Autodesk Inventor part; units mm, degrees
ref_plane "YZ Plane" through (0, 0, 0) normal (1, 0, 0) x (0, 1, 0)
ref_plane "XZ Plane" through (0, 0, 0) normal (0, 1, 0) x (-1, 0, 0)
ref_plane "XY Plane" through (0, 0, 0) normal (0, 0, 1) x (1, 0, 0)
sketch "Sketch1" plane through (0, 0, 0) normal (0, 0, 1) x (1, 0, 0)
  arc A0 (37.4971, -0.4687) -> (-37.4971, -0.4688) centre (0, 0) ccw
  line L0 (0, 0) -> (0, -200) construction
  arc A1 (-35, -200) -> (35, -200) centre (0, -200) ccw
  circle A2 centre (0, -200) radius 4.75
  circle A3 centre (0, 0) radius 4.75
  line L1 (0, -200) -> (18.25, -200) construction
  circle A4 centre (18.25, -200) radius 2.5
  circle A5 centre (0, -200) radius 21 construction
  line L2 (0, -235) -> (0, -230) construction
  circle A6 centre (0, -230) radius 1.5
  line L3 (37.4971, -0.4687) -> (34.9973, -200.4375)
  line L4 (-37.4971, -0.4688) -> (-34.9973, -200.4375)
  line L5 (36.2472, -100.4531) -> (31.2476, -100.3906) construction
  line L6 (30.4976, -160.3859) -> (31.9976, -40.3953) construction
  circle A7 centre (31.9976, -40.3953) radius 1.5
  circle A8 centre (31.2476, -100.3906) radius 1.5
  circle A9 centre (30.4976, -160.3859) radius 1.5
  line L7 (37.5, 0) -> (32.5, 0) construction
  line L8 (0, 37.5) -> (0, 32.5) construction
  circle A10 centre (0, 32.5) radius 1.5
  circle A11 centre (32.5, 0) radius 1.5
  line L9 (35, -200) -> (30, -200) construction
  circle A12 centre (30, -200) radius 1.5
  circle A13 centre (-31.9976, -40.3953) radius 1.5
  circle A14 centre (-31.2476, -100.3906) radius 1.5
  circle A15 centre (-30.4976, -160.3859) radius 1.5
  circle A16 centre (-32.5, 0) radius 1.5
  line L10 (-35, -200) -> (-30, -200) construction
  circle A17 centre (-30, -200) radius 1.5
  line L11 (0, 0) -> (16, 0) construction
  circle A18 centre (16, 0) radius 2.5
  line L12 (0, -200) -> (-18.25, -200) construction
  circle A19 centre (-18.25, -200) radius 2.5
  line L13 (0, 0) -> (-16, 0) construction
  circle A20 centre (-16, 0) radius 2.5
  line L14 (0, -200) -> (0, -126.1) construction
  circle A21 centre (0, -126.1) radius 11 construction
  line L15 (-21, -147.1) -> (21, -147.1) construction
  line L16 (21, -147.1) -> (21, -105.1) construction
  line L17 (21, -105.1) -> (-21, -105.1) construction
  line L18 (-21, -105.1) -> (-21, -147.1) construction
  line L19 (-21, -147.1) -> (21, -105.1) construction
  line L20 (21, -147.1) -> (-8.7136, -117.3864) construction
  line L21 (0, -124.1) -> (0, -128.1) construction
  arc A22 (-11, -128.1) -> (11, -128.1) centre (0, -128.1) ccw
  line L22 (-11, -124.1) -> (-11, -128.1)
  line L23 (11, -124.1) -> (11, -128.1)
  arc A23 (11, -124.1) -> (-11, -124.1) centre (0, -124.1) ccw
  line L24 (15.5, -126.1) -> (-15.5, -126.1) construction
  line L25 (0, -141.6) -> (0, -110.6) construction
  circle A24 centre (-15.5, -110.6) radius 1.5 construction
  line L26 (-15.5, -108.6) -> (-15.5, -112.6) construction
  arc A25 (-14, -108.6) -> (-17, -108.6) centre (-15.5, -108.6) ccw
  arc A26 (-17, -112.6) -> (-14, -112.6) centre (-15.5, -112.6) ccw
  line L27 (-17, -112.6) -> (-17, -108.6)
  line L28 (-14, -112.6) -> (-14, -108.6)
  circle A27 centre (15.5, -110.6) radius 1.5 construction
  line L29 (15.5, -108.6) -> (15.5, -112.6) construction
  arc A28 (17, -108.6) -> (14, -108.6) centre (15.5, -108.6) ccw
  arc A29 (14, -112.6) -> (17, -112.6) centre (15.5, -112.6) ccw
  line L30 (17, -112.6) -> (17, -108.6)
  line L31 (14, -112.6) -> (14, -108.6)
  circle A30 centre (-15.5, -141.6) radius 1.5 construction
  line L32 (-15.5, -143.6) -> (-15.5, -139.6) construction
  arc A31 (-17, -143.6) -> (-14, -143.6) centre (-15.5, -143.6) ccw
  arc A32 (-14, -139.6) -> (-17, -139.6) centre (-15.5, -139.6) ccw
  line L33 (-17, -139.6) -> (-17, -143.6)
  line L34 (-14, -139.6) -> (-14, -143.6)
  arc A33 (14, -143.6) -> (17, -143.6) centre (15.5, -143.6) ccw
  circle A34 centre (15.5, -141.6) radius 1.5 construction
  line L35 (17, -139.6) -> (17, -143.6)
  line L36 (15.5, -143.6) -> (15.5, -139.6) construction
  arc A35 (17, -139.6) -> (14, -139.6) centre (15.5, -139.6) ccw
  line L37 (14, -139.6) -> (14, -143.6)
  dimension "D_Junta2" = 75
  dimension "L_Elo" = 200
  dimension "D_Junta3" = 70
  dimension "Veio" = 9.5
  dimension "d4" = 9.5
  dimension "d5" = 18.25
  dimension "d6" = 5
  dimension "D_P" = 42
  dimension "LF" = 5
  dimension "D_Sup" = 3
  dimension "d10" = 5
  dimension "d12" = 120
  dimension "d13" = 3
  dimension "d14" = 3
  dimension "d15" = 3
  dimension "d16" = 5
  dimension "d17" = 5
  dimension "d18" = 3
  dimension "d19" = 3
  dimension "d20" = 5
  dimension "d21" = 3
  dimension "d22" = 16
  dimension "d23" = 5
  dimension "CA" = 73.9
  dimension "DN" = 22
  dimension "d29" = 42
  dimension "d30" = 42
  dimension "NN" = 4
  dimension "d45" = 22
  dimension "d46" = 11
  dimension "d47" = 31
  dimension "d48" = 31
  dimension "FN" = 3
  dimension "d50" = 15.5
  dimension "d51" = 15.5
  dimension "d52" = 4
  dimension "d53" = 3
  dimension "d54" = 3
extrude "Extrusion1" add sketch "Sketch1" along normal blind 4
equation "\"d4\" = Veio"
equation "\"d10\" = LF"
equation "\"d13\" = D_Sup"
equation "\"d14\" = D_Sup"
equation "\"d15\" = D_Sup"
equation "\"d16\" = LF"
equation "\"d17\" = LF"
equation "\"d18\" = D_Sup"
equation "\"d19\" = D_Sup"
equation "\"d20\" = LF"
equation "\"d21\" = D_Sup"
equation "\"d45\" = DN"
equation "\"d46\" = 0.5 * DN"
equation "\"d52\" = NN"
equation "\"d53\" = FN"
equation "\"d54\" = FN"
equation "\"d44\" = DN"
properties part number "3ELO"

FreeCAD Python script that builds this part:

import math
import FreeCAD as App
import Part
import Sketcher

V = App.Vector
Q = App.Units.Quantity

doc = App.newDocument("Part")
body = doc.addObject("PartDesign::Body", "Body")

# Sketch on XY plane
sketch1 = body.newObject("Sketcher::SketchObject", "Sketch")
sketch1.AttachmentSupport = (doc.getObject("XY_Plane"), [""])
sketch1.MapMode = "FlatFace"
sketch1.addGeometry(Part.LineSegment(V(35, -200.4, 0), V(37.5, -0.5, 0)), False)
sketch1.addGeometry(Part.ArcOfCircle(Part.Circle(V(0, 0, 0), V(0, 0, 1), 37.5), math.radians(-1), math.radians(181)), False)
sketch1.addGeometry(Part.LineSegment(V(-37.5, -0.5, 0), V(-35, -200.4, 0)), False)
sketch1.addGeometry(Part.ArcOfCircle(Part.Circle(V(0, -200, 0), V(0, 0, 1), 35), math.radians(-179), math.radians(-1)), False)
sketch1.addGeometry(Part.Circle(V(-30, -200, 0), V(0, 0, 1), 1.5), False)
sketch1.addGeometry(Part.Circle(V(-18.2, -200, 0), V(0, 0, 1), 2.5), False)
sketch1.addGeometry(Part.Circle(V(-30.5, -160.4, 0), V(0, 0, 1), 1.5), False)
sketch1.addGeometry(Part.Circle(V(-31.2, -100.4, 0), V(0, 0, 1), 1.5), False)
sketch1.addGeometry(Part.ArcOfCircle(Part.Circle(V(-15.5, -143.6, 0), V(0, 0, 1), 1.5), math.radians(180), math.radians(360)), False)
sketch1.addGeometry(Part.LineSegment(V(-17, -143.6, 0), V(-17, -139.6, 0)), False)
sketch1.addGeometry(Part.ArcOfCircle(Part.Circle(V(-15.5, -139.6, 0), V(0, 0, 1), 1.5), math.radians(0), math.radians(180)), False)
sketch1.addGeometry(Part.LineSegment(V(-14, -139.6, 0), V(-14, -143.6, 0)), False)
sketch1.addGeometry(Part.ArcOfCircle(Part.Circle(V(-15.5, -108.6, 0), V(0, 0, 1), 1.5), math.radians(0), math.radians(180)), False)
sketch1.addGeometry(Part.LineSegment(V(-14, -108.6, 0), V(-14, -112.6, 0)), False)
sketch1.addGeometry(Part.ArcOfCircle(Part.Circle(V(-15.5, -112.6, 0), V(0, 0, 1), 1.5), math.radians(180), math.radians(360)), False)
sketch1.addGeometry(Part.LineSegment(V(-17, -112.6, 0), V(-17, -108.6, 0)), False)
sketch1.addGeometry(Part.Circle(V(0, -230, 0), V(0, 0, 1), 1.5), False)
sketch1.addGeometry(Part.Circle(V(0, -200, 0), V(0, 0, 1), 4.8), False)
sketch1.addGeometry(Part.Circle(V(18.2, -200, 0), V(0, 0, 1), 2.5), False)
sketch1.addGeometry(Part.Circle(V(30, -200, 0), V(0, 0, 1), 1.5), False)
sketch1.addGeometry(Part.ArcOfCircle(Part.Circle(V(15.5, -143.6, 0), V(0, 0, 1), 1.5), math.radians(180), math.radians(360)), False)
sketch1.addGeometry(Part.LineSegment(V(14, -143.6, 0), V(14, -139.6, 0)), False)
sketch1.addGeometry(Part.ArcOfCircle(Part.Circle(V(15.5, -139.6, 0), V(0, 0, 1), 1.5), math.radians(0), math.radians(180)), False)
sketch1.addGeometry(Part.LineSegment(V(17, -139.6, 0), V(17, -143.6, 0)), False)
sketch1.addGeometry(Part.ArcOfCircle(Part.Circle(V(0, -128.1, 0), V(0, 0, 1), 11), math.radians(180), math.radians(360)), False)
sketch1.addGeometry(Part.LineSegment(V(-11, -128.1, 0), V(-11, -124.1, 0)), False)
sketch1.addGeometry(Part.ArcOfCircle(Part.Circle(V(0, -124.1, 0), V(0, 0, 1), 11), math.radians(0), math.radians(180)), False)
sketch1.addGeometry(Part.LineSegment(V(11, -124.1, 0), V(11, -128.1, 0)), False)
sketch1.addGeometry(Part.ArcOfCircle(Part.Circle(V(15.5, -108.6, 0), V(0, 0, 1), 1.5), math.radians(0), math.radians(180)), False)
sketch1.addGeometry(Part.LineSegment(V(17, -108.6, 0), V(17, -112.6, 0)), False)
sketch1.addGeometry(Part.ArcOfCircle(Part.Circle(V(15.5, -112.6, 0), V(0, 0, 1), 1.5), math.radians(180), math.radians(360)), False)
sketch1.addGeometry(Part.LineSegment(V(14, -112.6, 0), V(14, -108.6, 0)), False)
sketch1.addGeometry(Part.Circle(V(30.5, -160.4, 0), V(0, 0, 1), 1.5), False)
sketch1.addGeometry(Part.Circle(V(31.2, -100.4, 0), V(0, 0, 1), 1.5), False)
sketch1.addGeometry(Part.Circle(V(-32, -40.4, 0), V(0, 0, 1), 1.5), False)
sketch1.addGeometry(Part.Circle(V(-32.5, 0, 0), V(0, 0, 1), 1.5), False)
sketch1.addGeometry(Part.Circle(V(-16, 0, 0), V(0, 0, 1), 2.5), False)
sketch1.addGeometry(Part.Circle(V(32, -40.4, 0), V(0, 0, 1), 1.5), False)
sketch1.addGeometry(Part.Circle(V(0, 0, 0), V(0, 0, 1), 4.8), False)
sketch1.addGeometry(Part.Circle(V(16, 0, 0), V(0, 0, 1), 2.5), False)
sketch1.addGeometry(Part.Circle(V(0, 32.5, 0), V(0, 0, 1), 1.5), False)
sketch1.addGeometry(Part.Circle(V(32.5, 0, 0), V(0, 0, 1), 1.5), False)
sketch1.addConstraint(Sketcher.Constraint("Tangent", 0, 2, 1, 1))
sketch1.addConstraint(Sketcher.Constraint("Tangent", 1, 2, 2, 1))
sketch1.addConstraint(Sketcher.Constraint("Tangent", 2, 2, 3, 1))
sketch1.addConstraint(Sketcher.Constraint("Tangent", 3, 2, 0, 1))
sketch1.addConstraint(Sketcher.Constraint("Tangent", 8, 1, 9, 1))
sketch1.addConstraint(Sketcher.Constraint("Tangent", 9, 2, 10, 2))
sketch1.addConstraint(Sketcher.Constraint("Tangent", 10, 1, 11, 1))
sketch1.addConstraint(Sketcher.Constraint("Tangent", 11, 2, 8, 2))
sketch1.addConstraint(Sketcher.Constraint("Tangent", 12, 1, 13, 1))
sketch1.addConstraint(Sketcher.Constraint("Tangent", 13, 2, 14, 2))
sketch1.addConstraint(Sketcher.Constraint("Tangent", 14, 1, 15, 1))
sketch1.addConstraint(Sketcher.Constraint("Tangent", 15, 2, 12, 2))
sketch1.addConstraint(Sketcher.Constraint("Tangent", 20, 1, 21, 1))
sketch1.addConstraint(Sketcher.Constraint("Tangent", 21, 2, 22, 2))
sketch1.addConstraint(Sketcher.Constraint("Tangent", 22, 1, 23, 1))
sketch1.addConstraint(Sketcher.Constraint("Tangent", 23, 2, 20, 2))
sketch1.addConstraint(Sketcher.Constraint("Tangent", 24, 1, 25, 1))
sketch1.addConstraint(Sketcher.Constraint("Tangent", 25, 2, 26, 2))
sketch1.addConstraint(Sketcher.Constraint("Tangent", 26, 1, 27, 1))
sketch1.addConstraint(Sketcher.Constraint("Tangent", 27, 2, 24, 2))
sketch1.addConstraint(Sketcher.Constraint("Tangent", 28, 1, 29, 1))
sketch1.addConstraint(Sketcher.Constraint("Tangent", 29, 2, 30, 2))
sketch1.addConstraint(Sketcher.Constraint("Tangent", 30, 1, 31, 1))
sketch1.addConstraint(Sketcher.Constraint("Tangent", 31, 2, 28, 2))
sketch1.addConstraint(Sketcher.Constraint("Vertical", 9))
sketch1.addConstraint(Sketcher.Constraint("Vertical", 11))
sketch1.addConstraint(Sketcher.Constraint("Vertical", 13))
sketch1.addConstraint(Sketcher.Constraint("Vertical", 15))
sketch1.addConstraint(Sketcher.Constraint("Vertical", 21))
sketch1.addConstraint(Sketcher.Constraint("Vertical", 23))
sketch1.addConstraint(Sketcher.Constraint("Vertical", 25))
sketch1.addConstraint(Sketcher.Constraint("Vertical", 27))
sketch1.addConstraint(Sketcher.Constraint("Vertical", 29))
sketch1.addConstraint(Sketcher.Constraint("Vertical", 31))
sketch1.addConstraint(Sketcher.Constraint("Coincident", 1, 3, -1, 1))
sketch1.addConstraint(Sketcher.Constraint("Coincident", 38, 3, -1, 1))
sketch1.addConstraint(Sketcher.Constraint("Coincident", 17, 3, 3, 3))
sketch1.addConstraint(Sketcher.Constraint("Equal", 4, 6))
sketch1.addConstraint(Sketcher.Constraint("Equal", 6, 7))
sketch1.addConstraint(Sketcher.Constraint("Equal", 7, 8))
sketch1.addConstraint(Sketcher.Constraint("Equal", 10, 12))
sketch1.addConstraint(Sketcher.Constraint("Equal", 14, 16))
sketch1.addConstraint(Sketcher.Constraint("Equal", 5, 18))
sketch1.addConstraint(Sketcher.Constraint("Equal", 16, 19))
sketch1.addConstraint(Sketcher.Constraint("Equal", 19, 20))
sketch1.addConstraint(Sketcher.Constraint("Equal", 22, 28))
sketch1.addConstraint(Sketcher.Constraint("Equal", 30, 32))
sketch1.addConstraint(Sketcher.Constraint("Equal", 32, 33))
sketch1.addConstraint(Sketcher.Constraint("Equal", 33, 34))
sketch1.addConstraint(Sketcher.Constraint("Equal", 34, 35))
sketch1.addConstraint(Sketcher.Constraint("Equal", 18, 36))
sketch1.addConstraint(Sketcher.Constraint("Equal", 35, 37))
sketch1.addConstraint(Sketcher.Constraint("Equal", 17, 38))
sketch1.addConstraint(Sketcher.Constraint("Equal", 36, 39))
sketch1.addConstraint(Sketcher.Constraint("Equal", 37, 40))
sketch1.addConstraint(Sketcher.Constraint("Equal", 40, 41))
sketch1.addConstraint(Sketcher.Constraint("Symmetric", 36, 3, 39, 3, -1, 1))
sketch1.addConstraint(Sketcher.Constraint("Symmetric", 35, 3, 41, 3, -1, 1))
sketch1.addConstraint(Sketcher.Constraint("Symmetric", 5, 3, 18, 3, -2))
sketch1.addConstraint(Sketcher.Constraint("Symmetric", 4, 3, 19, 3, -2))
sketch1.addConstraint(Sketcher.Constraint("Symmetric", 8, 3, 20, 3, -2))
sketch1.addConstraint(Sketcher.Constraint("Symmetric", 12, 3, 28, 3, -2))
sketch1.addConstraint(Sketcher.Constraint("Symmetric", 6, 3, 32, 3, -2))
sketch1.addConstraint(Sketcher.Constraint("Symmetric", 7, 3, 33, 3, -2))
sketch1.addConstraint(Sketcher.Constraint("Symmetric", 34, 3, 37, 3, -2))
sketch1.addConstraint(Sketcher.Constraint("PointOnObject", 3, 3, -2))
sketch1.addConstraint(Sketcher.Constraint("PointOnObject", 16, 3, -2))
sketch1.addConstraint(Sketcher.Constraint("PointOnObject", 24, 3, -2))
sketch1.addConstraint(Sketcher.Constraint("PointOnObject", 35, 3, -1))
sketch1.addConstraint(Sketcher.Constraint("PointOnObject", 36, 3, -1))
sketch1.addConstraint(Sketcher.Constraint("PointOnObject", 40, 3, -2))
sketch1.addConstraint(Sketcher.Constraint("Horizontal", 3, 3, 4, 3))
sketch1.addConstraint(Sketcher.Constraint("Horizontal", 4, 3, 5, 3))
sketch1.addConstraint(Sketcher.Constraint("Horizontal", 10, 3, 22, 3))
sketch1.addConstraint(Sketcher.Constraint("Horizontal", 14, 3, 30, 3))
sketch1.addConstraint(Sketcher.Constraint("Vertical", 10, 3, 12, 3))
sketch1.addConstraint(Sketcher.Constraint("Equal", 11, 13))
sketch1.addConstraint(Sketcher.Constraint("Equal", 23, 25))
sketch1.addConstraint(Sketcher.Constraint("Diameter", 4, Q("3 mm")))
sketch1.addConstraint(Sketcher.Constraint("Diameter", 5, Q("5 mm")))
sketch1.addConstraint(Sketcher.Constraint("Radius", 3, Q("35 mm")))
sketch1.addConstraint(Sketcher.Constraint("Radius", 24, Q("11 mm")))
sketch1.addConstraint(Sketcher.Constraint("Diameter", 17, Q("9.5 mm")))
sketch1.addConstraint(Sketcher.Constraint("Radius", 1, Q("37.5 mm")))
sketch1.addConstraint(Sketcher.Constraint("DistanceY", 9, 1, 9, 2, Q("4 mm")))
sketch1.addConstraint(Sketcher.Constraint("DistanceY", 3, 3, -1, 1, Q("200 mm")))
sketch1.addConstraint(Sketcher.Constraint("DistanceX", 36, 3, -1, 1, Q("16 mm")))
sketch1.addConstraint(Sketcher.Constraint("DistanceY", 10, 3, 12, 3, Q("31 mm")))
sketch1.addConstraint(Sketcher.Constraint("DistanceX", 8, 3, 20, 3, Q("31 mm")))
sketch1.addConstraint(Sketcher.Constraint("DistanceY", 8, 3, 24, 3, Q("15.5 mm")))
sketch1.addConstraint(Sketcher.Constraint("DistanceX", 5, 3, -1, 1, Q("18.25 mm")))
sketch1.addConstraint(Sketcher.Constraint("DistanceX", 4, 3, -1, 1, Q("30 mm")))
sketch1.addConstraint(Sketcher.Constraint("DistanceY", 16, 3, -1, 1, Q("230 mm")))
sketch1.addConstraint(Sketcher.Constraint("DistanceX", 35, 3, 12, 3, Q("17 mm")))
sketch1.addConstraint(Sketcher.Constraint("DistanceY", 8, 3, -1, 1, Q("143.6 mm")))
sketch1.addConstraint(Sketcher.Constraint("DistanceY", -1, 1, 40, 3, Q("32.5 mm")))
sketch1.addConstraint(Sketcher.Constraint("DistanceX", 7, 3, 6, 3, Q("0.75 mm")))
sketch1.addConstraint(Sketcher.Constraint("DistanceX", 34, 3, 7, 3, Q("0.75 mm")))
sketch1.addConstraint(Sketcher.Constraint("DistanceY", 6, 3, -1, 1, Q("160.386 mm")))
sketch1.addConstraint(Sketcher.Constraint("DistanceX", 6, 3, -1, 1, Q("30.4976 mm")))
sketch1.addConstraint(Sketcher.Constraint("DistanceY", 7, 3, -1, 1, Q("100.3906 mm")))
sketch1.addConstraint(Sketcher.Constraint("DistanceY", 34, 3, -1, 1, Q("40.3953 mm")))
pad1 = body.newObject("PartDesign::Pad", "Pad")
pad1.Profile = sketch1
pad1.Length = 4

doc.recompute()
